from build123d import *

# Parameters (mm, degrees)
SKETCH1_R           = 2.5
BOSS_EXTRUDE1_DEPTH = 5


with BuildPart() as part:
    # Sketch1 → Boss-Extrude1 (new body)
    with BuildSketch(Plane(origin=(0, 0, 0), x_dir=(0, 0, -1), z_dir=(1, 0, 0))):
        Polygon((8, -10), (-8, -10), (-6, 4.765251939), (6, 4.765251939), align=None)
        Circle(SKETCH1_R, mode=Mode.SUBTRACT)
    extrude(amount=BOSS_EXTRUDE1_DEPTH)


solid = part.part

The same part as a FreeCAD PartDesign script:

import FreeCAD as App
import Part
import Sketcher
from FreeCAD import Vector
Q = App.Units.Quantity

doc = App.newDocument("Part")
params = doc.addObject("Spreadsheet::Sheet", "Params")
for row, (alias, value) in enumerate([
    ("sketch1_diameter", "5 mm"),
    ("sketch1_height", "16 mm"),
    ("sketch1_height2", "12 mm"),
    ("pad1_length", "5 mm"),
], start=1):
    params.set(f"A{row}", alias)
    params.set(f"B{row}", "=" + value)
    params.setAlias(f"B{row}", alias)

body = doc.addObject("PartDesign::Body", "Body")

sketch1 = body.newObject("Sketcher::SketchObject", "Sketch")
sketch1.AttachmentSupport = (doc.getObject("YZ_Plane"), [""])
sketch1.MapMode = "FlatFace"
sketch1.addGeometry([
    Part.LineSegment(Vector(-10, 8, 0), Vector(-10, -8, 0)),
    Part.LineSegment(Vector(-10, -8, 0), Vector(4.8, -6, 0)),
    Part.LineSegment(Vector(4.8, -6, 0), Vector(4.8, 6, 0)),
    Part.LineSegment(Vector(4.8, 6, 0), Vector(-10, 8, 0)),
    Part.Circle(Vector(0, 0, 0), Vector(0, 0, 1), 2.5),
], False)
sketch1.addConstraint([
    Sketcher.Constraint("Coincident", 0, 2, 1, 1),
    Sketcher.Constraint("Coincident", 1, 2, 2, 1),
    Sketcher.Constraint("Coincident", 2, 2, 3, 1),
    Sketcher.Constraint("Coincident", 3, 2, 0, 1),
    Sketcher.Constraint("Vertical", 0),
    Sketcher.Constraint("Vertical", 2),
    Sketcher.Constraint("Coincident", 4, 3, -1, 1),
    Sketcher.Constraint("Equal", 1, 3),
    Sketcher.Constraint("Diameter", 4, Q("5 mm")),
    Sketcher.Constraint("DistanceY", 0, 2, 0, 1, Q("16 mm")),
    Sketcher.Constraint("DistanceY", 2, 1, 2, 2, Q("12 mm")),
    Sketcher.Constraint("DistanceX", 0, 2, -1, 1, Q("10 mm")),
    Sketcher.Constraint("DistanceY", 0, 2, -1, 1, Q("8 mm")),
    Sketcher.Constraint("Distance", 1, Q("14.900089 mm")),
])
sketch1.setExpression("Constraints[8]", "Params.sketch1_diameter")
sketch1.setExpression("Constraints[9]", "Params.sketch1_height")
sketch1.setExpression("Constraints[10]", "Params.sketch1_height2")
pad1 = body.newObject("PartDesign::Pad", "Pad")
pad1.Profile = sketch1
pad1.setExpression("Length", "Params.pad1_length")

doc.recompute()
